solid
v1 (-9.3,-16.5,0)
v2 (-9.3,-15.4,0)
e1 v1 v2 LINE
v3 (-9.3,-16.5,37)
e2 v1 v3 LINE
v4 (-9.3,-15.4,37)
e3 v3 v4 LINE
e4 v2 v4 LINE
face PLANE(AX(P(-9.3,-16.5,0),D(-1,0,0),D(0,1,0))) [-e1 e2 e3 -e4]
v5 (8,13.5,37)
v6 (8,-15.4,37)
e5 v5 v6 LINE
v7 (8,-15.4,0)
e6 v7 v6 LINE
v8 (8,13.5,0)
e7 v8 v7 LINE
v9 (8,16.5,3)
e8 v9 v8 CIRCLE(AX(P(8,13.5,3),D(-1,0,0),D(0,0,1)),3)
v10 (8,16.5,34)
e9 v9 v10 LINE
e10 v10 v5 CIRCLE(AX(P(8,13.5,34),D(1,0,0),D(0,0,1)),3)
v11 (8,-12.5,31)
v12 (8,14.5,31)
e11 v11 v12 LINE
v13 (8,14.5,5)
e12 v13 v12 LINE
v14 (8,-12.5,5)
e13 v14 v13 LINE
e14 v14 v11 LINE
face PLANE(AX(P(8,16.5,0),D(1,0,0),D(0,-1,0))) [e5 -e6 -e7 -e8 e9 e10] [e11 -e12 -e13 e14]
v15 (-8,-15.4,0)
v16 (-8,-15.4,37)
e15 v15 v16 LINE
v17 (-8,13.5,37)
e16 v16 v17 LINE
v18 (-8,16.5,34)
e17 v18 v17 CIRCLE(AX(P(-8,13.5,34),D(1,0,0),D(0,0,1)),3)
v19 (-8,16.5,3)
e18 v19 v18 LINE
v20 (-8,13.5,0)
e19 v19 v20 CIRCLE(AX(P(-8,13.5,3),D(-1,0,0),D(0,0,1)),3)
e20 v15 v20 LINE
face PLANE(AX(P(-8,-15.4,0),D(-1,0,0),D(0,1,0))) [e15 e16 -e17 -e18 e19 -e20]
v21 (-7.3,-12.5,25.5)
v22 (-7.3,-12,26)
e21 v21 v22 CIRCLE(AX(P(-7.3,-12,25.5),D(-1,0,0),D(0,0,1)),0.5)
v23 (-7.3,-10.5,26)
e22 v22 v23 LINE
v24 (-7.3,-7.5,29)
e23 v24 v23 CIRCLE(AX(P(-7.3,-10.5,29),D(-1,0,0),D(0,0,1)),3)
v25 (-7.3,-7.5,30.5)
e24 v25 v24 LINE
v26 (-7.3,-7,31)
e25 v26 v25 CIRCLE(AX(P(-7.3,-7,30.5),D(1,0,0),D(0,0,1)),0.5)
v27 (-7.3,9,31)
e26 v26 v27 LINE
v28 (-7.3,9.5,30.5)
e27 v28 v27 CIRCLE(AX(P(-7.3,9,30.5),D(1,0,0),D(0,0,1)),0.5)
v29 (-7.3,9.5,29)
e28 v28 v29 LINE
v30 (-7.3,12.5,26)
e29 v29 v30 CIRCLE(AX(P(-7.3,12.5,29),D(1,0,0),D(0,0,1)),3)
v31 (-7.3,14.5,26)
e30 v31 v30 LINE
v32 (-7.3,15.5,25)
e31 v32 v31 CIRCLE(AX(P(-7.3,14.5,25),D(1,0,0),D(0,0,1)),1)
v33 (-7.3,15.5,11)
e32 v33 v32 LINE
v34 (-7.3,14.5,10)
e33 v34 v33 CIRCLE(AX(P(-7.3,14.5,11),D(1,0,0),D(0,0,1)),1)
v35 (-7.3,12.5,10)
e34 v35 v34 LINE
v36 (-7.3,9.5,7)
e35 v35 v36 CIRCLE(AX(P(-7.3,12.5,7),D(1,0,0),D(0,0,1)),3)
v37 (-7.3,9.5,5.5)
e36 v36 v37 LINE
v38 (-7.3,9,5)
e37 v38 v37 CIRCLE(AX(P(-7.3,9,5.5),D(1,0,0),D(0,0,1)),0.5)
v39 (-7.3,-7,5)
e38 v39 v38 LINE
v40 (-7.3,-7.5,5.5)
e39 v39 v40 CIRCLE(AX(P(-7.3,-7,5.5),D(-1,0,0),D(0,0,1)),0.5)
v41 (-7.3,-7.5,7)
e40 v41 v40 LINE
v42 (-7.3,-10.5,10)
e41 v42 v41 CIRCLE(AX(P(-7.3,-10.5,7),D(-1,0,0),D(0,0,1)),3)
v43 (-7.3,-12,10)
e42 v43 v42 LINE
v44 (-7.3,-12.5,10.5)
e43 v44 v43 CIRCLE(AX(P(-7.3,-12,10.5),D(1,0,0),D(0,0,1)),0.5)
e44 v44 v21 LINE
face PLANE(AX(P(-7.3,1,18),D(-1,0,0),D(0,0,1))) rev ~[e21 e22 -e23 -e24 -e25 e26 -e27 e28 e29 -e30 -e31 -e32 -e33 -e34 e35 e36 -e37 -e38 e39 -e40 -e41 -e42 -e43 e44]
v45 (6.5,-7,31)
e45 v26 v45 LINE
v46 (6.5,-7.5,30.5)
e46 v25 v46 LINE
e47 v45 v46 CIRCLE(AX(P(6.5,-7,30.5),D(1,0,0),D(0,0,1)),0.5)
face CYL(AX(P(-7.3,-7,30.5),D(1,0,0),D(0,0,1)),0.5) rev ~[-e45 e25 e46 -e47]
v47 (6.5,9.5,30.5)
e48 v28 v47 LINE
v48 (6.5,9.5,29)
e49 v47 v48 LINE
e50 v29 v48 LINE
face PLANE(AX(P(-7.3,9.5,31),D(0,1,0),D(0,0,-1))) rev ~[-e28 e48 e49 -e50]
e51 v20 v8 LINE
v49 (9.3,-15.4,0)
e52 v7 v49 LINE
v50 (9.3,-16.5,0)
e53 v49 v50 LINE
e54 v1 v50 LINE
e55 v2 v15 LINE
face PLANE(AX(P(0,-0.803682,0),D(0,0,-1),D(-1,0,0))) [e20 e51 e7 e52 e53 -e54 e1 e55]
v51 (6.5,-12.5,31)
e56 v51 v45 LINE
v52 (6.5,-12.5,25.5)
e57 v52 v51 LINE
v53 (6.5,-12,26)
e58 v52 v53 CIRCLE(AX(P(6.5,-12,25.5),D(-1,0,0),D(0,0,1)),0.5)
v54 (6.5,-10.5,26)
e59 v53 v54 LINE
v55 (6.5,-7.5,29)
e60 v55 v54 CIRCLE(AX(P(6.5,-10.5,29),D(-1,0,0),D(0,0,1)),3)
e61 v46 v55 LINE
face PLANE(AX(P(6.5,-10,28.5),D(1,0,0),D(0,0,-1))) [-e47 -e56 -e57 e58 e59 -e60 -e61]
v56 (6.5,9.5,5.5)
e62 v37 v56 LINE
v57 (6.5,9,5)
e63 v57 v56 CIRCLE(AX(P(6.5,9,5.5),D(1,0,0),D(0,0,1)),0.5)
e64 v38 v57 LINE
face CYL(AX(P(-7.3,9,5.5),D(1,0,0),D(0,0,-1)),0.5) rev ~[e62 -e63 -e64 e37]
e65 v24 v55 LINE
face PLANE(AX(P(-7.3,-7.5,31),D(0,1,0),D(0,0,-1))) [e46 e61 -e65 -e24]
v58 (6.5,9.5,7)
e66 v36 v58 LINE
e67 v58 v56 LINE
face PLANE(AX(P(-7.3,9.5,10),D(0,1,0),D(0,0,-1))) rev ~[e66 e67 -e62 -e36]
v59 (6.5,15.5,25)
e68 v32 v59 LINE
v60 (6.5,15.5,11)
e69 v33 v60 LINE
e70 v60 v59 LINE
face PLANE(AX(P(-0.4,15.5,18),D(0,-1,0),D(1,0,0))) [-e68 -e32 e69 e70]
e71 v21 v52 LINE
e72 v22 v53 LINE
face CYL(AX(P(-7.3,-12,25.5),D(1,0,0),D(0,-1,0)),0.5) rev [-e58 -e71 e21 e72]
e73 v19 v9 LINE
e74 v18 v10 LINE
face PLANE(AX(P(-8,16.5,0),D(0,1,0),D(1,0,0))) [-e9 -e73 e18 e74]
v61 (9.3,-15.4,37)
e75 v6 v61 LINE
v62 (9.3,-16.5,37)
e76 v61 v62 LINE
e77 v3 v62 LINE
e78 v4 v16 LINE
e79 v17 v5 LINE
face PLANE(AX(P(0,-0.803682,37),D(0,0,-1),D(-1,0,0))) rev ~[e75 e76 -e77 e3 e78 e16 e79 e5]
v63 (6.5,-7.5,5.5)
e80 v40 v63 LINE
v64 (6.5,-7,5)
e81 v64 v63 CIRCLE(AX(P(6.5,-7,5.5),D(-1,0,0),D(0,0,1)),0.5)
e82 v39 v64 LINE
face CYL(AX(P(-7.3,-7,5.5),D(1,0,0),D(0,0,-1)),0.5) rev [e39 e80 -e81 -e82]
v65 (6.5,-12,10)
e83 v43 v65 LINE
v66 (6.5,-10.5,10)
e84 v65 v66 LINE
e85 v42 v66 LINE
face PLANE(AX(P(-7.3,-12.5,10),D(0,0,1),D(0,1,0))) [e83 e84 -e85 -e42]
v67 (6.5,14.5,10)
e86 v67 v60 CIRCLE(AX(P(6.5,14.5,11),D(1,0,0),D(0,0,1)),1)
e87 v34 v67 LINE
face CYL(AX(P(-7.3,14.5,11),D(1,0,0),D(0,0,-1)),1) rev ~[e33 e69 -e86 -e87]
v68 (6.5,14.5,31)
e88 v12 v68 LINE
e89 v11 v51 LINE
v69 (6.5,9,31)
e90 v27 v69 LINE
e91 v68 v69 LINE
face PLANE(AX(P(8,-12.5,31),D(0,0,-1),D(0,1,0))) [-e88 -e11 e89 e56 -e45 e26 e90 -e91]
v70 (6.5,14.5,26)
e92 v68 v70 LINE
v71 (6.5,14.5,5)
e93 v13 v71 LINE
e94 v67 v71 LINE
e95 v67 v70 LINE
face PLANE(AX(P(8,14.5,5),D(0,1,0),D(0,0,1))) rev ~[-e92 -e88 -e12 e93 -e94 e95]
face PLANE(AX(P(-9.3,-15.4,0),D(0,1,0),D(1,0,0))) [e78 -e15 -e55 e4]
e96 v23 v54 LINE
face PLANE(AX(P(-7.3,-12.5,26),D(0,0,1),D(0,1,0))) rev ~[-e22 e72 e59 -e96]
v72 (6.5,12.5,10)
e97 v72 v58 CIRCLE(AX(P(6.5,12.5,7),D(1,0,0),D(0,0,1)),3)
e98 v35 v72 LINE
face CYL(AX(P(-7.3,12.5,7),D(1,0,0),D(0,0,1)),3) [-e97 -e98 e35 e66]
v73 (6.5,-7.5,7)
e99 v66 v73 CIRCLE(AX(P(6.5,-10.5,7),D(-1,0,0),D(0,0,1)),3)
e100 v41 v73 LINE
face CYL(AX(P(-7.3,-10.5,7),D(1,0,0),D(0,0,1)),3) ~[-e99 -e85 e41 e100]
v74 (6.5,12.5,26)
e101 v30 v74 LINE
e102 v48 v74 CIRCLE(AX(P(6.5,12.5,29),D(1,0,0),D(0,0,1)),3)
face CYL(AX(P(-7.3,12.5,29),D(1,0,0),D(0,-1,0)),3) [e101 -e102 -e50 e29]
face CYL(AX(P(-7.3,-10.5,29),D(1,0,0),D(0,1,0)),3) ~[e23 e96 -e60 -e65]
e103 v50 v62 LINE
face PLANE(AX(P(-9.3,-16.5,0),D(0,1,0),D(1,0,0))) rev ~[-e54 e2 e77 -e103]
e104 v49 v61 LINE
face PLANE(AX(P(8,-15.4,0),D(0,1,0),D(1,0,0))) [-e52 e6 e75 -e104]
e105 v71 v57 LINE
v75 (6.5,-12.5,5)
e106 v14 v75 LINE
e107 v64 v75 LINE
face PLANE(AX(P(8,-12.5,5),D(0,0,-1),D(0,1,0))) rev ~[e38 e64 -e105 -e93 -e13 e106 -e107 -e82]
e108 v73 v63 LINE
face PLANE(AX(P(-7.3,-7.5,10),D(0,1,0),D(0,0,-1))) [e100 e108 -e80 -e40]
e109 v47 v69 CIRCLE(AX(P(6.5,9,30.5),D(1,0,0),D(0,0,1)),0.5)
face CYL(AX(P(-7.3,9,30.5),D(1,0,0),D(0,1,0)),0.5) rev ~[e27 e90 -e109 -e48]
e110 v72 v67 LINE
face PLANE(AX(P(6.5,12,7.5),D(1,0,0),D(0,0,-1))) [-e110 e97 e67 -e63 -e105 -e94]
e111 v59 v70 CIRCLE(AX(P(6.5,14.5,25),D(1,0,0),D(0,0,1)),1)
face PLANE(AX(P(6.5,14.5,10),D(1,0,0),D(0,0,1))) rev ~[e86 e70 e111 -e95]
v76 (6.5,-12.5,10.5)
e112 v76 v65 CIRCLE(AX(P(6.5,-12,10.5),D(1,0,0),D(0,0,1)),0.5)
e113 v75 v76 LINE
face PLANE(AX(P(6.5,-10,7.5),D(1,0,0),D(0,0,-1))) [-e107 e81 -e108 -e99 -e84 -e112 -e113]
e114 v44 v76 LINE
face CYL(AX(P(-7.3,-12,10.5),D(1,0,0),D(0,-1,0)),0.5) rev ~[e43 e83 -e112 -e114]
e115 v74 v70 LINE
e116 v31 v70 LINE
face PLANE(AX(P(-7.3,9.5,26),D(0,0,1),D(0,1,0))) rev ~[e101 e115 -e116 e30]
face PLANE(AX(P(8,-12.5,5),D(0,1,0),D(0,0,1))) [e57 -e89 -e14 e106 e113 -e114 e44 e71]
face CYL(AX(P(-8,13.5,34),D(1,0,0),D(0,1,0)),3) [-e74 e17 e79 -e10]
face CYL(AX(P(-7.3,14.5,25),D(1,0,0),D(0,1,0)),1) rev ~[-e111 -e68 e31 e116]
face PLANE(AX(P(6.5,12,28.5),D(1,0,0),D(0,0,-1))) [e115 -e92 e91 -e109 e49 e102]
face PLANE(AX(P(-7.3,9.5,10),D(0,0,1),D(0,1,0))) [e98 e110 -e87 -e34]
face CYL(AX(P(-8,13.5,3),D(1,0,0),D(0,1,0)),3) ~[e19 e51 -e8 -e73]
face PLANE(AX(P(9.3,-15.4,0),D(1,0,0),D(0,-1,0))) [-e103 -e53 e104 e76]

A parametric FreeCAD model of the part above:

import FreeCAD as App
import Part
import Sketcher
from FreeCAD import Vector


def edges_at(feature, points):
    """Names of the edges that pass closest to the given points."""
    edges = feature.Shape.Edges
    near = lambda p: min(range(len(edges)), key=lambda i: edges[i].distToShape(Part.Vertex(*p))[0])
    return sorted({f"Edge{near(p) + 1}" for p in points})

doc = App.newDocument("Part")
body = doc.addObject("PartDesign::Body", "Body")

sketch1 = body.newObject("Sketcher::SketchObject", "Sketch")
sketch1.AttachmentSupport = (doc.getObject("XY_Plane"), [""])
sketch1.MapMode = "FlatFace"
sketch1.addGeometry(Part.LineSegment(Vector(-9.3, -16.5, 0), Vector(9.3, -16.5, 0)), False)
sketch1.addGeometry(Part.LineSegment(Vector(9.3, -16.5, 0), Vector(9.3, -15.4, 0)), False)
sketch1.addGeometry(Part.LineSegment(Vector(9.3, -15.4, 0), Vector(8, -15.4, 0)), False)
sketch1.addGeometry(Part.LineSegment(Vector(8, -15.4, 0), Vector(8, 16.5, 0)), False)
sketch1.addGeometry(Part.LineSegment(Vector(8, 16.5, 0), Vector(-8, 16.5, 0)), False)
sketch1.addGeometry(Part.LineSegment(Vector(-8, 16.5, 0), Vector(-8, -15.4, 0)), False)
sketch1.addGeometry(Part.LineSegment(Vector(-8, -15.4, 0), Vector(-9.3, -15.4, 0)), False)
sketch1.addGeometry(Part.LineSegment(Vector(-9.3, -15.4, 0), Vector(-9.3, -16.5, 0)), False)
sketch1.addConstraint(Sketcher.Constraint("Coincident", 0, 2, 1, 1))
sketch1.addConstraint(Sketcher.Constraint("Coincident", 1, 2, 2, 1))
sketch1.addConstraint(Sketcher.Constraint("Coincident", 2, 2, 3, 1))
sketch1.addConstraint(Sketcher.Constraint("Coincident", 3, 2, 4, 1))
sketch1.addConstraint(Sketcher.Constraint("Coincident", 4, 2, 5, 1))
sketch1.addConstraint(Sketcher.Constraint("Coincident", 5, 2, 6, 1))
sketch1.addConstraint(Sketcher.Constraint("Coincident", 6, 2, 7, 1))
sketch1.addConstraint(Sketcher.Constraint("Coincident", 7, 2, 0, 1))
sketch1.addConstraint(Sketcher.Constraint("Horizontal", 0))
sketch1.addConstraint(Sketcher.Constraint("Vertical", 1))
sketch1.addConstraint(Sketcher.Constraint("Horizontal", 2))
sketch1.addConstraint(Sketcher.Constraint("Vertical", 3))
sketch1.addConstraint(Sketcher.Constraint("Horizontal", 4))
sketch1.addConstraint(Sketcher.Constraint("Vertical", 5))
sketch1.addConstraint(Sketcher.Constraint("Horizontal", 6))
sketch1.addConstraint(Sketcher.Constraint("Vertical", 7))
sketch1.addConstraint(Sketcher.Constraint("Symmetric", 2, 2, 5, 2, -2))
sketch1.addConstraint(Sketcher.Constraint("Equal", 2, 6))
sketch1.addConstraint(Sketcher.Constraint("DistanceX", 4, 2, 4, 1, 16.0))
sketch1.addConstraint(Sketcher.Constraint("DistanceX", 0, 1, 0, 2, 18.6))
sketch1.addConstraint(Sketcher.Constraint("DistanceY", 1, 1, 1, 2, 1.1))
sketch1.addConstraint(Sketcher.Constraint("DistanceY", 3, 1, 3, 2, 31.9))
sketch1.addConstraint(Sketcher.Constraint("DistanceY", 0, 2, -1, 1, 16.5))
pad1 = body.newObject("PartDesign::Pad", "Pad")
pad1.Profile = sketch1
pad1.Length = 37

sketch2 = body.newObject("Sketcher::SketchObject", "Sketch001")
sketch2.AttachmentSupport = (doc.getObject("YZ_Plane"), [""])
sketch2.MapMode = "FlatFace"
sketch2.AttachmentOffset = App.Placement(Vector(0, 0, 8), App.Rotation())
sketch2.addGeometry(Part.LineSegment(Vector(14.5, 5, 0), Vector(-12.5, 5, 0)), False)
sketch2.addGeometry(Part.LineSegment(Vector(-12.5, 5, 0), Vector(-12.5, 31, 0)), False)
sketch2.addGeometry(Part.LineSegment(Vector(-12.5, 31, 0), Vector(14.5, 31, 0)), False)
sketch2.addGeometry(Part.LineSegment(Vector(14.5, 31, 0), Vector(14.5, 5, 0)), False)
sketch2.addConstraint(Sketcher.Constraint("Coincident", 0, 2, 1, 1))
sketch2.addConstraint(Sketcher.Constraint("Coincident", 1, 2, 2, 1))
sketch2.addConstraint(Sketcher.Constraint("Coincident", 2, 2, 3, 1))
sketch2.addConstraint(Sketcher.Constraint("Coincident", 3, 2, 0, 1))
sketch2.addConstraint(Sketcher.Constraint("Horizontal", 0))
sketch2.addConstraint(Sketcher.Constraint("Vertical", 1))
sketch2.addConstraint(Sketcher.Constraint("Horizontal", 2))
sketch2.addConstraint(Sketcher.Constraint("Vertical", 3))
sketch2.addConstraint(Sketcher.Constraint("DistanceX", 0, 2, 0, 1, 27.0))
sketch2.addConstraint(Sketcher.Constraint("DistanceY", 1, 1, 1, 2, 26.0))
sketch2.addConstraint(Sketcher.Constraint("DistanceY", -1, 1, 0, 2, 5.0))
sketch2.addConstraint(Sketcher.Constraint("DistanceX", 0, 2, -1, 1, 12.5))
pocket1 = body.newObject("PartDesign::Pocket", "Pocket")
pocket1.Profile = sketch2
pocket1.Length = 15.3

sketch3 = body.newObject("Sketcher::SketchObject", "Sketch002")
sketch3.AttachmentSupport = (doc.getObject("YZ_Plane"), [""])
sketch3.MapMode = "FlatFace"
sketch3.AttachmentOffset = App.Placement(Vector(0, 0, -7.3), App.Rotation())
sketch3.addGeometry(Part.LineSegment(Vector(14.5, 31, 0), Vector(9.5, 31, 0)), False)
sketch3.addGeometry(Part.LineSegment(Vector(9.5, 31, 0), Vector(9.5, 26, 0)), False)
sketch3.addGeometry(Part.LineSegment(Vector(9.5, 26, 0), Vector(14.5, 26, 0)), False)
sketch3.addGeometry(Part.LineSegment(Vector(14.5, 26, 0), Vector(14.5, 31, 0)), False)
sketch3.addGeometry(Part.LineSegment(Vector(14.5, 10, 0), Vector(9.5, 10, 0)), False)
sketch3.addGeometry(Part.LineSegment(Vector(9.5, 10, 0), Vector(9.5, 5, 0)), False)
sketch3.addGeometry(Part.LineSegment(Vector(9.5, 5, 0), Vector(14.5, 5, 0)), False)
sketch3.addGeometry(Part.LineSegment(Vector(14.5, 5, 0), Vector(14.5, 10, 0)), False)
sketch3.addGeometry(Part.LineSegment(Vector(-7.5, 10, 0), Vector(-12.5, 10, 0)), False)
sketch3.addGeometry(Part.LineSegment(Vector(-12.5, 10, 0), Vector(-12.5, 5, 0)), False)
sketch3.addGeometry(Part.LineSegment(Vector(-12.5, 5, 0), Vector(-7.5, 5, 0)), False)
sketch3.addGeometry(Part.LineSegment(Vector(-7.5, 5, 0), Vector(-7.5, 10, 0)), False)
sketch3.addGeometry(Part.LineSegment(Vector(-7.5, 31, 0), Vector(-12.5, 31, 0)), False)
sketch3.addGeometry(Part.LineSegment(Vector(-12.5, 31, 0), Vector(-12.5, 26, 0)), False)
sketch3.addGeometry(Part.LineSegment(Vector(-12.5, 26, 0), Vector(-7.5, 26, 0)), False)
sketch3.addGeometry(Part.LineSegment(Vector(-7.5, 26, 0), Vector(-7.5, 31, 0)), False)
sketch3.addConstraint(Sketcher.Constraint("Coincident", 0, 2, 1, 1))
sketch3.addConstraint(Sketcher.Constraint("Coincident", 1, 2, 2, 1))
sketch3.addConstraint(Sketcher.Constraint("Coincident", 2, 2, 3, 1))
sketch3.addConstraint(Sketcher.Constraint("Coincident", 3, 2, 0, 1))
sketch3.addConstraint(Sketcher.Constraint("Coincident", 4, 2, 5, 1))
sketch3.addConstraint(Sketcher.Constraint("Coincident", 5, 2, 6, 1))
sketch3.addConstraint(Sketcher.Constraint("Coincident", 6, 2, 7, 1))
sketch3.addConstraint(Sketcher.Constraint("Coincident", 7, 2, 4, 1))
sketch3.addConstraint(Sketcher.Constraint("Coincident", 8, 2, 9, 1))
sketch3.addConstraint(Sketcher.Constraint("Coincident", 9, 2, 10, 1))
sketch3.addConstraint(Sketcher.Constraint("Coincident", 10, 2, 11, 1))
sketch3.addConstraint(Sketcher.Constraint("Coincident", 11, 2, 8, 1))
sketch3.addConstraint(Sketcher.Constraint("Coincident", 12, 2, 13, 1))
sketch3.addConstraint(Sketcher.Constraint("Coincident", 13, 2, 14, 1))
sketch3.addConstraint(Sketcher.Constraint("Coincident", 14, 2, 15, 1))
sketch3.addConstraint(Sketcher.Constraint("Coincident", 15, 2, 12, 1))
sketch3.addConstraint(Sketcher.Constraint("Horizontal", 0))
sketch3.addConstraint(Sketcher.Constraint("Vertical", 1))
sketch3.addConstraint(Sketcher.Constraint("Horizontal", 2))
sketch3.addConstraint(Sketcher.Constraint("Vertical", 3))
sketch3.addConstraint(Sketcher.Constraint("Horizontal", 4))
sketch3.addConstraint(Sketcher.Constraint("Vertical", 5))
sketch3.addConstraint(Sketcher.Constraint("Horizontal", 6))
sketch3.addConstraint(Sketcher.Constraint("Vertical", 7))
sketch3.addConstraint(Sketcher.Constraint("Horizontal", 8))
sketch3.addConstraint(Sketcher.Constraint("Vertical", 9))
sketch3.addConstraint(Sketcher.Constraint("Horizontal", 10))
sketch3.addConstraint(Sketcher.Constraint("Vertical", 11))
sketch3.addConstraint(Sketcher.Constraint("Horizontal", 12))
sketch3.addConstraint(Sketcher.Constraint("Vertical", 13))
sketch3.addConstraint(Sketcher.Constraint("Horizontal", 14))
sketch3.addConstraint(Sketcher.Constraint("Vertical", 15))
sketch3.addConstraint(Sketcher.Constraint("Horizontal", 7, 2, 8, 2))
sketch3.addConstraint(Sketcher.Constraint("Horizontal", 6, 2, 9, 2))
sketch3.addConstraint(Sketcher.Constraint("Horizontal", 3, 2, 12, 2))
sketch3.addConstraint(Sketcher.Constraint("Horizontal", 2, 2, 13, 2))
sketch3.addConstraint(Sketcher.Constraint("Vertical", 1, 2, 4, 2))
sketch3.addConstraint(Sketcher.Constraint("Vertical", 3, 2, 6, 2))
sketch3.addConstraint(Sketcher.Constraint("Vertical", 9, 2, 12, 2))
sketch3.addConstraint(Sketcher.Constraint("Vertical", 11, 2, 14, 2))
sketch3.addConstraint(Sketcher.Constraint("Equal", 6, 8))
sketch3.addConstraint(Sketcher.Constraint("Equal", 14, 1))
sketch3.addConstraint(Sketcher.Constraint("Equal", 3, 5))
sketch3.addConstraint(Sketcher.Constraint("DistanceX", 0, 2, 0, 1, 5.0))
sketch3.addConstraint(Sketcher.Constraint("DistanceY", -1, 1, 0, 2, 31.0))
sketch3.addConstraint(Sketcher.Constraint("DistanceY", -1, 1, 4, 2, 10.0))
sketch3.addConstraint(Sketcher.Constraint("DistanceX", 8, 2, 4, 2, 22.0))
sketch3.addConstraint(Sketcher.Constraint("DistanceX", -1, 1, 0, 2, 9.5))
pad2 = body.newObject("PartDesign::Pad", "Pad001")
pad2.Profile = sketch3
pad2.Length = 13.8
doc.recompute()

fillet = body.newObject("PartDesign::Fillet", "Fillet")
fillet.Base = (pad2, edges_at(pad2, [
    (-0.4, 9.5, 31),
    (-0.4, 9.5, 5),
    (-0.4, -7.5, 31),
    (-0.4, -12.5, 26),
    (-0.4, -7.5, 5),
    (-0.4, -12.5, 10),
]))
fillet.Radius = 0.5
doc.recompute()

fillet2 = body.newObject("PartDesign::Fillet", "Fillet001")
fillet2.Base = (fillet, edges_at(fillet, [
    (-0.4, 9.5, 26),
    (-0.4, 9.5, 10),
    (-0.4, -7.5, 26),
    (-0.4, -7.5, 10),
]))
fillet2.Radius = 3

sketch4 = body.newObject("Sketcher::SketchObject", "Sketch003")
sketch4.AttachmentSupport = (doc.getObject("XZ_Plane"), [""])
sketch4.MapMode = "FlatFace"
sketch4.AttachmentOffset = App.Placement(Vector(0, 0, -14.5), App.Rotation())
sketch4.addGeometry(Part.LineSegment(Vector(-7.3, 26, 0), Vector(-7.3, 10, 0)), False)
sketch4.addGeometry(Part.LineSegment(Vector(-7.3, 10, 0), Vector(6.5, 10, 0)), False)
sketch4.addGeometry(Part.LineSegment(Vector(6.5, 10, 0), Vector(6.5, 26, 0)), False)
sketch4.addGeometry(Part.LineSegment(Vector(6.5, 26, 0), Vector(-7.3, 26, 0)), False)
sketch4.addConstraint(Sketcher.Constraint("Coincident", 0, 2, 1, 1))
sketch4.addConstraint(Sketcher.Constraint("Coincident", 1, 2, 2, 1))
sketch4.addConstraint(Sketcher.Constraint("Coincident", 2, 2, 3, 1))
sketch4.addConstraint(Sketcher.Constraint("Coincident", 3, 2, 0, 1))
sketch4.addConstraint(Sketcher.Constraint("Vertical", 0))
sketch4.addConstraint(Sketcher.Constraint("Horizontal", 1))
sketch4.addConstraint(Sketcher.Constraint("Vertical", 2))
sketch4.addConstraint(Sketcher.Constraint("Horizontal", 3))
sketch4.addConstraint(Sketcher.Constraint("DistanceY", 0, 2, 0, 1, 16.0))
sketch4.addConstraint(Sketcher.Constraint("DistanceX", 1, 1, 1, 2, 13.8))
sketch4.addConstraint(Sketcher.Constraint("DistanceY", -1, 1, 0, 2, 10.0))
sketch4.addConstraint(Sketcher.Constraint("DistanceX", 0, 2, -1, 1, 7.3))
pocket2 = body.newObject("PartDesign::Pocket", "Pocket001")
pocket2.Profile = sketch4
pocket2.Length = 1
doc.recompute()

fillet3 = body.newObject("PartDesign::Fillet", "Fillet002")
fillet3.Base = (pocket2, edges_at(pocket2, [(-0.4, 15.5, 10), (-0.4, 15.5, 26)]))
fillet3.Radius = 1
doc.recompute()

fillet4 = body.newObject("PartDesign::Fillet", "Fillet003")
fillet4.Base = (fillet3, edges_at(fillet3, [(0, 16.5, 0), (0, 16.5, 37)]))
fillet4.Radius = 3

doc.recompute()
